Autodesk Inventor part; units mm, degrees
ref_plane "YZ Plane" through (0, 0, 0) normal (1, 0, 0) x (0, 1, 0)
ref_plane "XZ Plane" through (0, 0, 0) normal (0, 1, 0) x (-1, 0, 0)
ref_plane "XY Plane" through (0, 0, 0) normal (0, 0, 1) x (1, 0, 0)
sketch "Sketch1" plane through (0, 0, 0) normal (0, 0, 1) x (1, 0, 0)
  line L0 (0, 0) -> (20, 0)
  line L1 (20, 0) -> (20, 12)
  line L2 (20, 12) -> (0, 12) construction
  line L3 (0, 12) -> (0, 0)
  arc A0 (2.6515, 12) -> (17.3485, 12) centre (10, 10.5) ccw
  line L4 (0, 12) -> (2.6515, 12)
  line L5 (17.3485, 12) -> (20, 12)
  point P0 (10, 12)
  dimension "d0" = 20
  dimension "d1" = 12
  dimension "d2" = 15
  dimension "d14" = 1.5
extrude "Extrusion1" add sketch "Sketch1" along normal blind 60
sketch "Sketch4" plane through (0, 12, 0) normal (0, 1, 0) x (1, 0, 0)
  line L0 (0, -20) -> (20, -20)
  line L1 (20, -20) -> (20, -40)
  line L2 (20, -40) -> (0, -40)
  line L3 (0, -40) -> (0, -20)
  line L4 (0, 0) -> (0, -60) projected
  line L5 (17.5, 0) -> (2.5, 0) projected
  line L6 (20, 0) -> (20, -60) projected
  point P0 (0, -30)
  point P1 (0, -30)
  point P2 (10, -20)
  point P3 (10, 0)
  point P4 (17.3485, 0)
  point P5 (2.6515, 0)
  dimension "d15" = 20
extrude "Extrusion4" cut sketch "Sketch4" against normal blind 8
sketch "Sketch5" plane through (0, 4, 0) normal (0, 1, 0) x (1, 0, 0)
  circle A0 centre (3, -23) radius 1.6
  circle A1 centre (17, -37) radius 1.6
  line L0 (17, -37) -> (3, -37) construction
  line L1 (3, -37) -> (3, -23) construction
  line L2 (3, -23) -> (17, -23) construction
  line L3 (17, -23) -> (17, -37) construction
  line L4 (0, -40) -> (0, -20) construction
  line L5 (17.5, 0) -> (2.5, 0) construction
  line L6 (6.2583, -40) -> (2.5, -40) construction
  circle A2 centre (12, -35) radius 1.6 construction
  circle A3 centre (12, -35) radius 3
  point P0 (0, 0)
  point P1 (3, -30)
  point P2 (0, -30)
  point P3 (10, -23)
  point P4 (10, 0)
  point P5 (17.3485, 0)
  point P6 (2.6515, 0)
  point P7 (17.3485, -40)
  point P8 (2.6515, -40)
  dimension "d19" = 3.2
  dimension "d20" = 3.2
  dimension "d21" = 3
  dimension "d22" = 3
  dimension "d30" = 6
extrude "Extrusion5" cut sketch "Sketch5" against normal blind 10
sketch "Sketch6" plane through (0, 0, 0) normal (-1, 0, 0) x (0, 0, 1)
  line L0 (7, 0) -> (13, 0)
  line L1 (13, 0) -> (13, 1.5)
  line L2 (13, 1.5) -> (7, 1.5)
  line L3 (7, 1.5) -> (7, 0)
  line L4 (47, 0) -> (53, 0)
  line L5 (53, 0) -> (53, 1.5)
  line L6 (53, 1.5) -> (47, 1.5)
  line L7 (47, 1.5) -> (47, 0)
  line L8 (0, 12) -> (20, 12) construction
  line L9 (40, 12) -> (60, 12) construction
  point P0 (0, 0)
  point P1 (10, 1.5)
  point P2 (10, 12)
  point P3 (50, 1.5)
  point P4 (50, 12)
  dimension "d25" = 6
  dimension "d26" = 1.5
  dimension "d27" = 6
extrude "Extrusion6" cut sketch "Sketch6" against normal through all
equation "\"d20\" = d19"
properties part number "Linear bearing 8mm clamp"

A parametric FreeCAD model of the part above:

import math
import FreeCAD as App
import Part
import Sketcher
from FreeCAD import Vector


def add_polygon(sketch, points):
    """Adds a closed chain of lines whose ends are joined by coincident constraints."""
    first, n = sketch.GeometryCount, len(points)
    for a, b in zip(points, points[1:] + points[:1]):
        sketch.addGeometry(Part.LineSegment(App.Vector(*a, 0), App.Vector(*b, 0)), False)
    for i in range(n):
        sketch.addConstraint(Sketcher.Constraint("Coincident", first + i, 2, first + (i + 1) % n, 1))

doc = App.newDocument("Part")
body = doc.addObject("PartDesign::Body", "Body")

# Sketch on XY plane
sketch1 = body.newObject("Sketcher::SketchObject", "Sketch")
sketch1.AttachmentSupport = (doc.getObject("XY_Plane"), [""])
sketch1.MapMode = "FlatFace"
sketch1.addGeometry([
    Part.LineSegment(Vector(0, 12, 0), Vector(0, 0, 0)),  # 0
    Part.LineSegment(Vector(0, 0, 0), Vector(20, 0, 0)),  # 1
    Part.LineSegment(Vector(20, 0, 0), Vector(20, 12, 0)),  # 2
    Part.LineSegment(Vector(20, 12, 0), Vector(17.3, 12, 0)),  # 3
    Part.ArcOfCircle(Part.Circle(Vector(10, 10.5, 0), Vector(0, 0, 1), 7.5), math.radians(168), math.radians(372)),  # 4
    Part.LineSegment(Vector(2.7, 12, 0), Vector(0, 12, 0)),  # 5
], False)
sketch1.addConstraint([
    Sketcher.Constraint("Coincident", 0, 2, 1, 1),
    Sketcher.Constraint("Coincident", 1, 2, 2, 1),
    Sketcher.Constraint("Coincident", 2, 2, 3, 1),
    Sketcher.Constraint("Coincident", 3, 2, 4, 2),
    Sketcher.Constraint("Coincident", 4, 1, 5, 1),
    Sketcher.Constraint("Coincident", 5, 2, 0, 1),
    Sketcher.Constraint("Vertical", 0),
    Sketcher.Constraint("Horizontal", 1),
    Sketcher.Constraint("Vertical", 2),
    Sketcher.Constraint("Horizontal", 3),
    Sketcher.Constraint("Horizontal", 5),
    Sketcher.Constraint("Coincident", 0, 2, -1, 1),
    Sketcher.Constraint("Horizontal", 3, 2, 4, 1),
    Sketcher.Constraint("Equal", 3, 5),
    Sketcher.Constraint("Radius", 4, 7.5),
    Sketcher.Constraint("DistanceX", 1, 1, 1, 2, 20.0),
    Sketcher.Constraint("DistanceY", 0, 2, 0, 1, 12.0),
    Sketcher.Constraint("DistanceY", 4, 3, 2, 2, 1.5),
])
pad1 = body.newObject("PartDesign::Pad", "Pad")
pad1.Profile = sketch1
pad1.Length = 60

# Sketch on XZ plane
sketch2 = body.newObject("Sketcher::SketchObject", "Sketch001")
sketch2.AttachmentSupport = (doc.getObject("XZ_Plane"), [""])
sketch2.MapMode = "FlatFace"
sketch2.AttachmentOffset = App.Placement(Vector(0, 0, -12), App.Rotation())
add_polygon(sketch2, [(20, 20), (0, 20), (0, 40), (20, 40)])  # lines 0-3
sketch2.addConstraint([
    Sketcher.Constraint("Horizontal", 0),
    Sketcher.Constraint("Vertical", 1),
    Sketcher.Constraint("Horizontal", 2),
    Sketcher.Constraint("Vertical", 3),
    Sketcher.Constraint("PointOnObject", 0, 2, -2),
    Sketcher.Constraint("Equal", 2, 1),
    Sketcher.Constraint("DistanceX", 0, 2, 0, 1, 20.0),
    Sketcher.Constraint("DistanceY", -1, 1, 0, 2, 20.0),
])
pocket1 = body.newObject("PartDesign::Pocket", "Pocket")
pocket1.Profile = sketch2
pocket1.Length = 8
pocket1.Reversed = True

# Sketch on XZ plane
sketch3 = body.newObject("Sketcher::SketchObject", "Sketch002")
sketch3.AttachmentSupport = (doc.getObject("XZ_Plane"), [""])
sketch3.MapMode = "FlatFace"
sketch3.AttachmentOffset = App.Placement(Vector(0, 0, -4), App.Rotation())
sketch3.addGeometry([
    Part.Circle(Vector(3, 23, 0), Vector(0, 0, 1), 1.6),
    Part.Circle(Vector(17, 37, 0), Vector(0, 0, 1), 1.6),
    Part.Circle(Vector(12, 35, 0), Vector(0, 0, 1), 3),
], False)
sketch3.addConstraint([
    Sketcher.Constraint("Equal", 0, 1),
    Sketcher.Constraint("Diameter", 2, 6.0),
    Sketcher.Constraint("Diameter", 0, 3.2),
    Sketcher.Constraint("DistanceX", -1, 1, 0, 3, 3.0),
    Sketcher.Constraint("DistanceY", -1, 1, 0, 3, 23.0),
    Sketcher.Constraint("DistanceX", -1, 1, 1, 3, 17.0),
    Sketcher.Constraint("DistanceY", -1, 1, 1, 3, 37.0),
    Sketcher.Constraint("DistanceX", -1, 1, 2, 3, 12.0),
    Sketcher.Constraint("DistanceY", -1, 1, 2, 3, 35.0),
])
pocket2 = body.newObject("PartDesign::Pocket", "Pocket001")
pocket2.Profile = sketch3
pocket2.Length = 10
pocket2.Reversed = True

# Sketch on YZ plane
sketch4 = body.newObject("Sketcher::SketchObject", "Sketch003")
sketch4.AttachmentSupport = (doc.getObject("YZ_Plane"), [""])
sketch4.MapMode = "FlatFace"
add_polygon(sketch4, [(1.5, 7), (0, 7), (0, 13), (1.5, 13)])  # lines 0-3
add_polygon(sketch4, [(1.5, 47), (0, 47), (0, 53), (1.5, 53)])  # lines 4-7
sketch4.addConstraint([
    Sketcher.Constraint("Horizontal", 0),
    Sketcher.Constraint("Vertical", 1),
    Sketcher.Constraint("Horizontal", 2),
    Sketcher.Constraint("Vertical", 3),
    Sketcher.Constraint("Horizontal", 4),
    Sketcher.Constraint("Vertical", 5),
    Sketcher.Constraint("Horizontal", 6),
    Sketcher.Constraint("Vertical", 7),
    Sketcher.Constraint("PointOnObject", 0, 2, -2),
    Sketcher.Constraint("PointOnObject", 4, 2, -2),
    Sketcher.Constraint("Vertical", 3, 2, 6, 2),
    Sketcher.Constraint("Equal", 3, 5),
    Sketcher.Constraint("DistanceY", 1, 1, 1, 2, 6.0),
    Sketcher.Constraint("DistanceX", 0, 2, 0, 1, 1.5),
    Sketcher.Constraint("DistanceY", -1, 1, 0, 2, 7.0),
    Sketcher.Constraint("DistanceY", -1, 1, 4, 2, 47.0),
])
pocket3 = body.newObject("PartDesign::Pocket", "Pocket002")
pocket3.Profile = sketch4
pocket3.Type = "ThroughAll"
pocket3.Reversed = True

doc.recompute()
